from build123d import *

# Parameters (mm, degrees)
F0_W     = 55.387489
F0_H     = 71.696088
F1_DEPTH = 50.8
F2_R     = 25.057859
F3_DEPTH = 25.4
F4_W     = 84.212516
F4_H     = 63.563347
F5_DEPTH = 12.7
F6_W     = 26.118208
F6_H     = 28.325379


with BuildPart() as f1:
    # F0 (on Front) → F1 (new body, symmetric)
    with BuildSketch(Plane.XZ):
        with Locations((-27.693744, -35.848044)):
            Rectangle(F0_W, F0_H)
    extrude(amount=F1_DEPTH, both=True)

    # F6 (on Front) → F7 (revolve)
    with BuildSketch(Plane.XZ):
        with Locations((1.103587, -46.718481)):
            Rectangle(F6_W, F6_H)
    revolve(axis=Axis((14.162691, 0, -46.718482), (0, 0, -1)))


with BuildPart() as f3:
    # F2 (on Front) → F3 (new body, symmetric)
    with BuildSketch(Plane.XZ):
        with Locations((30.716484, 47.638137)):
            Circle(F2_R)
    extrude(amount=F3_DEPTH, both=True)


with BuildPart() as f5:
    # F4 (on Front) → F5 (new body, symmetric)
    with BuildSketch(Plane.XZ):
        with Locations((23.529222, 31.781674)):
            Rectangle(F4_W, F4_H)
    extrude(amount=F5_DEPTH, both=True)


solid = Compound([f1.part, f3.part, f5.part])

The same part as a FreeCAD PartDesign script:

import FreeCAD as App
import Part
import Sketcher
from FreeCAD import Vector

doc = App.newDocument("Part")
params = doc.addObject("Spreadsheet::Sheet", "Params")
for row, (alias, value) in enumerate([
    ("pad1_length", "4 in"),
    ("revolution_angle", "360 deg"),
    ("pad2_length", "2 in"),
    ("pad3_length", "1 in"),
], start=1):
    params.set(f"A{row}", alias)
    params.set(f"B{row}", "=" + value)
    params.setAlias(f"B{row}", alias)

body = doc.addObject("PartDesign::Body", "Body")

# Sketch on XZ plane
sketch1 = doc.addObject("Sketcher::SketchObject", "Sketch")
body.addObject(sketch1)
sketch1.AttachmentSupport = (doc.XZ_Plane, [""])
sketch1.MapMode = "FlatFace"
sketch1.addGeometry([
    Part.LineSegment(Vector(-55, 0, 0), Vector(-55, -72, 0)),
    Part.LineSegment(Vector(-55, -72, 0), Vector(0, -72, 0)),
    Part.LineSegment(Vector(0, -72, 0), Vector(0, 0, 0)),
    Part.LineSegment(Vector(0, 0, 0), Vector(-55, 0, 0)),
], False)
sketch1.addConstraint([
    Sketcher.Constraint("Coincident", 0, 2, 1, 1),
    Sketcher.Constraint("Coincident", 1, 2, 2, 1),
    Sketcher.Constraint("Coincident", 2, 2, 3, 1),
    Sketcher.Constraint("Coincident", 3, 2, 0, 1),
    Sketcher.Constraint("Vertical", 0),
    Sketcher.Constraint("Horizontal", 1),
    Sketcher.Constraint("Vertical", 2),
    Sketcher.Constraint("Horizontal", 3),
    Sketcher.Constraint("Coincident", 2, 2, -1, 1),
    Sketcher.Constraint("DistanceX", 1, 1, 1, 2, 55.387489),
    Sketcher.Constraint("DistanceY", 0, 2, 0, 1, 71.696088),
])
pad1 = doc.addObject("PartDesign::Pad", "Pad")
body.addObject(pad1)
pad1.Profile = sketch1
pad1.setExpression("Length", "Params.pad1_length")
pad1.Midplane = True

# Sketch on XZ plane
sketch2 = doc.addObject("Sketcher::SketchObject", "Sketch001")
body.addObject(sketch2)
sketch2.AttachmentSupport = (doc.XZ_Plane, [""])
sketch2.MapMode = "FlatFace"
sketch2.addGeometry([
    Part.LineSegment(Vector(-12, -33, 0), Vector(-12, -61, 0)),
    Part.LineSegment(Vector(-12, -61, 0), Vector(14, -61, 0)),
    Part.LineSegment(Vector(14, -61, 0), Vector(14, -33, 0)),
    Part.LineSegment(Vector(14, -33, 0), Vector(-12, -33, 0)),
], False)
sketch2.addGeometry(Part.LineSegment(Vector(14, -33, 0), Vector(14, -61, 0)), True)  # axis
sketch2.addConstraint([
    Sketcher.Constraint("Coincident", 0, 2, 1, 1),
    Sketcher.Constraint("Coincident", 1, 2, 2, 1),
    Sketcher.Constraint("Coincident", 2, 2, 3, 1),
    Sketcher.Constraint("Coincident", 3, 2, 0, 1),
    Sketcher.Constraint("Vertical", 0),
    Sketcher.Constraint("Horizontal", 1),
    Sketcher.Constraint("Vertical", 2),
    Sketcher.Constraint("Horizontal", 3),
    Sketcher.Constraint("Vertical", 4),
    Sketcher.Constraint("Coincident", 4, 1, 2, 2),
    Sketcher.Constraint("Horizontal", 0, 2, 4, 2),
    Sketcher.Constraint("DistanceX", 1, 1, 1, 2, 26.118208),
    Sketcher.Constraint("DistanceY", 0, 2, 0, 1, 28.325379),
    Sketcher.Constraint("DistanceY", 0, 2, -1, 1, 60.881171),
    Sketcher.Constraint("DistanceX", -1, 1, 1, 2, 14.162691),
])
revolution = doc.addObject("PartDesign::Revolution", "Revolution")
body.addObject(revolution)
revolution.Profile = sketch2
revolution.ReferenceAxis = (sketch2, ["Axis0"])
revolution.setExpression("Angle", "Params.revolution_angle")
body2 = doc.addObject("PartDesign::Body", "Body001")

# Sketch on XZ plane
sketch3 = doc.addObject("Sketcher::SketchObject", "Sketch002")
body2.addObject(sketch3)
sketch3.AttachmentSupport = (doc.getObject("XZ_Plane001"), [""])
sketch3.MapMode = "FlatFace"
sketch3.addGeometry(Part.Circle(Vector(31, 48, 0), Vector(0, 0, 1), 25), False)
sketch3.addConstraint([
    Sketcher.Constraint("Diameter", 0, 50.115718),
    Sketcher.Constraint("DistanceX", -1, 1, 0, 3, 30.716484),
    Sketcher.Constraint("DistanceY", -1, 1, 0, 3, 47.638137),
])
pad2 = doc.addObject("PartDesign::Pad", "Pad001")
body2.addObject(pad2)
pad2.Profile = sketch3
pad2.setExpression("Length", "Params.pad2_length")
pad2.Midplane = True
body3 = doc.addObject("PartDesign::Body", "Body002")

# Sketch on XZ plane
sketch4 = doc.addObject("Sketcher::SketchObject", "Sketch003")
body3.addObject(sketch4)
sketch4.AttachmentSupport = (doc.getObject("XZ_Plane002"), [""])
sketch4.MapMode = "FlatFace"
sketch4.addGeometry([
    Part.LineSegment(Vector(-19, 64, 0), Vector(-19, 0, 0)),
    Part.LineSegment(Vector(-19, 0, 0), Vector(66, 0, 0)),
    Part.LineSegment(Vector(66, 0, 0), Vector(66, 64, 0)),
    Part.LineSegment(Vector(66, 64, 0), Vector(-19, 64, 0)),
], False)
sketch4.addConstraint([
    Sketcher.Constraint("Coincident", 0, 2, 1, 1),
    Sketcher.Constraint("Coincident", 1, 2, 2, 1),
    Sketcher.Constraint("Coincident", 2, 2, 3, 1),
    Sketcher.Constraint("Coincident", 3, 2, 0, 1),
    Sketcher.Constraint("Vertical", 0),
    Sketcher.Constraint("Horizontal", 1),
    Sketcher.Constraint("Vertical", 2),
    Sketcher.Constraint("Horizontal", 3),
    Sketcher.Constraint("PointOnObject", 0, 2, -1),
    Sketcher.Constraint("DistanceX", 1, 1, 1, 2, 84.212516),
    Sketcher.Constraint("DistanceY", 0, 2, 0, 1, 63.563347),
    Sketcher.Constraint("DistanceX", -1, 1, 1, 2, 65.63548),
])
pad3 = doc.addObject("PartDesign::Pad", "Pad002")
body3.addObject(pad3)
pad3.Profile = sketch4
pad3.setExpression("Length", "Params.pad3_length")
pad3.Midplane = True

doc.recompute()
